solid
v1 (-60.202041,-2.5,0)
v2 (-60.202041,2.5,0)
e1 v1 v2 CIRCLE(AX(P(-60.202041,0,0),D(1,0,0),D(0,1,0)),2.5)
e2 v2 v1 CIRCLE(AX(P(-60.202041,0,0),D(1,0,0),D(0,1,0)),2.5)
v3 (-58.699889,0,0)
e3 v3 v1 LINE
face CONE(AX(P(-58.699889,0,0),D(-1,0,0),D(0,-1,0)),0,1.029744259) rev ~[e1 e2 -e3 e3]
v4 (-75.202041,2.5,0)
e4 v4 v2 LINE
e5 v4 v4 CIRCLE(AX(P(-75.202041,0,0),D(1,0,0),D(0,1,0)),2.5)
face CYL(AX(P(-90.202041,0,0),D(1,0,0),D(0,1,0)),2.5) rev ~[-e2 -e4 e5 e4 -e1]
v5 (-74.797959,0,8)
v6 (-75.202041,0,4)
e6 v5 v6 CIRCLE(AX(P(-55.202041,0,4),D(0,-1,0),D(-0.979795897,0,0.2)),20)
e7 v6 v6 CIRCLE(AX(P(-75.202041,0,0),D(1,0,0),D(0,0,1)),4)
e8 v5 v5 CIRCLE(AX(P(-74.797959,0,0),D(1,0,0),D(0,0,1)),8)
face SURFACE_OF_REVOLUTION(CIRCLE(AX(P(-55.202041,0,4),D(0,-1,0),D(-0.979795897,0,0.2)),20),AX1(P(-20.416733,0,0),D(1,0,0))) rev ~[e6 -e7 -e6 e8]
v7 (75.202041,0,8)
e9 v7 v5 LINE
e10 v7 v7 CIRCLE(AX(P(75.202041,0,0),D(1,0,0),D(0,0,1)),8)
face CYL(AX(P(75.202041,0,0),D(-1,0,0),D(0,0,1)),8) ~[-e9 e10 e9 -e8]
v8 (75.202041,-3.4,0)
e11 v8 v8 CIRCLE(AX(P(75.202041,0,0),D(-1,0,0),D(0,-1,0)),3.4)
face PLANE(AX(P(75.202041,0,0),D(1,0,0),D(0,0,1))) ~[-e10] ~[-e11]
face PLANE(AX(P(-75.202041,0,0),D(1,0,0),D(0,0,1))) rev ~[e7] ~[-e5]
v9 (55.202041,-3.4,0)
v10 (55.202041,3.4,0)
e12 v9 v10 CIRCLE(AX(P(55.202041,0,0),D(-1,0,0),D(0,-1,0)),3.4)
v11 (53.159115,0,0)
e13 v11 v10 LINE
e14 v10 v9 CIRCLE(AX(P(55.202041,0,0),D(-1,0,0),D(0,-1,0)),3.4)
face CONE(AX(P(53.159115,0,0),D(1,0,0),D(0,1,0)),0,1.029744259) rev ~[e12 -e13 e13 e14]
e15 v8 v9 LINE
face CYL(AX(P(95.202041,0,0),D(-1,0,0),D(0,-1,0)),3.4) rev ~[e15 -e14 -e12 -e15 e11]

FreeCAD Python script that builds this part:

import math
import FreeCAD as App
import Part
import Sketcher

doc = App.newDocument("Part")
body = doc.addObject("PartDesign::Body", "Body")

sketch1 = body.newObject("Sketcher::SketchObject", "Sketch")
sketch1.AttachmentSupport = (doc.getObject("XZ_Plane"), [""])
sketch1.MapMode = "FlatFace"
sketch1.addGeometry([
    Part.LineSegment(App.Vector(-75.2, 0, 0), App.Vector(75.2, 0, 0)),
    Part.LineSegment(App.Vector(75.2, 0, 0), App.Vector(75.2, 8, 0)),
    Part.LineSegment(App.Vector(75.2, 8, 0), App.Vector(-74.8, 8, 0)),
    Part.ArcOfCircle(Part.Circle(App.Vector(-55.2, 4, 0), App.Vector(0, 0, 1), 20), math.radians(168.46), math.radians(180)),
    Part.LineSegment(App.Vector(-75.2, 4, 0), App.Vector(-75.2, 0, 0)),
], False)
sketch1.addConstraint([
    Sketcher.Constraint("Coincident", 0, 2, 1, 1),
    Sketcher.Constraint("Coincident", 1, 2, 2, 1),
    Sketcher.Constraint("Coincident", 2, 2, 3, 1),
    Sketcher.Constraint("Tangent", 3, 2, 4, 1),
    Sketcher.Constraint("Coincident", 4, 2, 0, 1),
    Sketcher.Constraint("Horizontal", 0),
    Sketcher.Constraint("Vertical", 1),
    Sketcher.Constraint("Horizontal", 2),
    Sketcher.Constraint("Vertical", 4),
    Sketcher.Constraint("Symmetric", 0, 2, 4, 2, -1, 1),
    Sketcher.Constraint("Radius", 3, 20.0),
    Sketcher.Constraint("DistanceX", 2, 2, 2, 1, 150.0),
    Sketcher.Constraint("DistanceY", 1, 1, 1, 2, 8.0),
    Sketcher.Constraint("DistanceY", 4, 2, 4, 1, 4.0),
])
revolution = body.newObject("PartDesign::Revolution", "Revolution")
revolution.Profile = sketch1
revolution.ReferenceAxis = (sketch1, ["H_Axis"])
revolution.Angle = 360

sketch2 = body.newObject("Sketcher::SketchObject", "Sketch001")
sketch2.AttachmentSupport = (doc.getObject("YZ_Plane"), [""])
sketch2.MapMode = "FlatFace"
sketch2.AttachmentOffset = App.Placement(App.Vector(0, 0, -75.202041), App.Rotation())
sketch2.addGeometry(Part.Circle(App.Vector(0, 0, 0), App.Vector(0, 0, 1), 2.5), False)
sketch2.addConstraint([
    Sketcher.Constraint("Coincident", 0, 3, -1, 1),
    Sketcher.Constraint("Diameter", 0, 5.0),
])
doc.recompute()
hole = body.newObject("PartDesign::Hole", "Hole")
hole.Profile = sketch2
hole.ThreadType = "None"
hole.Diameter = 5
hole.DepthType = "Dimension"
hole.Depth = 15
hole.DrillPoint = "Angled"
hole.DrillPointAngle = 118
hole.Reversed = True

sketch3 = body.newObject("Sketcher::SketchObject", "Sketch002")
sketch3.AttachmentSupport = (doc.getObject("YZ_Plane"), [""])
sketch3.MapMode = "FlatFace"
sketch3.AttachmentOffset = App.Placement(App.Vector(0, 0, 75.202041), App.Rotation())
sketch3.addGeometry(Part.Circle(App.Vector(0, 0, 0), App.Vector(0, 0, 1), 3.4), False)
sketch3.addConstraint([
    Sketcher.Constraint("Coincident", 0, 3, -1, 1),
    Sketcher.Constraint("Diameter", 0, 6.8),
])
doc.recompute()
hole2 = body.newObject("PartDesign::Hole", "Hole001")
hole2.Profile = sketch3
hole2.ThreadType = "None"
hole2.Diameter = 6.8
hole2.DepthType = "Dimension"
hole2.Depth = 20
hole2.DrillPoint = "Angled"
hole2.DrillPointAngle = 118

doc.recompute()
